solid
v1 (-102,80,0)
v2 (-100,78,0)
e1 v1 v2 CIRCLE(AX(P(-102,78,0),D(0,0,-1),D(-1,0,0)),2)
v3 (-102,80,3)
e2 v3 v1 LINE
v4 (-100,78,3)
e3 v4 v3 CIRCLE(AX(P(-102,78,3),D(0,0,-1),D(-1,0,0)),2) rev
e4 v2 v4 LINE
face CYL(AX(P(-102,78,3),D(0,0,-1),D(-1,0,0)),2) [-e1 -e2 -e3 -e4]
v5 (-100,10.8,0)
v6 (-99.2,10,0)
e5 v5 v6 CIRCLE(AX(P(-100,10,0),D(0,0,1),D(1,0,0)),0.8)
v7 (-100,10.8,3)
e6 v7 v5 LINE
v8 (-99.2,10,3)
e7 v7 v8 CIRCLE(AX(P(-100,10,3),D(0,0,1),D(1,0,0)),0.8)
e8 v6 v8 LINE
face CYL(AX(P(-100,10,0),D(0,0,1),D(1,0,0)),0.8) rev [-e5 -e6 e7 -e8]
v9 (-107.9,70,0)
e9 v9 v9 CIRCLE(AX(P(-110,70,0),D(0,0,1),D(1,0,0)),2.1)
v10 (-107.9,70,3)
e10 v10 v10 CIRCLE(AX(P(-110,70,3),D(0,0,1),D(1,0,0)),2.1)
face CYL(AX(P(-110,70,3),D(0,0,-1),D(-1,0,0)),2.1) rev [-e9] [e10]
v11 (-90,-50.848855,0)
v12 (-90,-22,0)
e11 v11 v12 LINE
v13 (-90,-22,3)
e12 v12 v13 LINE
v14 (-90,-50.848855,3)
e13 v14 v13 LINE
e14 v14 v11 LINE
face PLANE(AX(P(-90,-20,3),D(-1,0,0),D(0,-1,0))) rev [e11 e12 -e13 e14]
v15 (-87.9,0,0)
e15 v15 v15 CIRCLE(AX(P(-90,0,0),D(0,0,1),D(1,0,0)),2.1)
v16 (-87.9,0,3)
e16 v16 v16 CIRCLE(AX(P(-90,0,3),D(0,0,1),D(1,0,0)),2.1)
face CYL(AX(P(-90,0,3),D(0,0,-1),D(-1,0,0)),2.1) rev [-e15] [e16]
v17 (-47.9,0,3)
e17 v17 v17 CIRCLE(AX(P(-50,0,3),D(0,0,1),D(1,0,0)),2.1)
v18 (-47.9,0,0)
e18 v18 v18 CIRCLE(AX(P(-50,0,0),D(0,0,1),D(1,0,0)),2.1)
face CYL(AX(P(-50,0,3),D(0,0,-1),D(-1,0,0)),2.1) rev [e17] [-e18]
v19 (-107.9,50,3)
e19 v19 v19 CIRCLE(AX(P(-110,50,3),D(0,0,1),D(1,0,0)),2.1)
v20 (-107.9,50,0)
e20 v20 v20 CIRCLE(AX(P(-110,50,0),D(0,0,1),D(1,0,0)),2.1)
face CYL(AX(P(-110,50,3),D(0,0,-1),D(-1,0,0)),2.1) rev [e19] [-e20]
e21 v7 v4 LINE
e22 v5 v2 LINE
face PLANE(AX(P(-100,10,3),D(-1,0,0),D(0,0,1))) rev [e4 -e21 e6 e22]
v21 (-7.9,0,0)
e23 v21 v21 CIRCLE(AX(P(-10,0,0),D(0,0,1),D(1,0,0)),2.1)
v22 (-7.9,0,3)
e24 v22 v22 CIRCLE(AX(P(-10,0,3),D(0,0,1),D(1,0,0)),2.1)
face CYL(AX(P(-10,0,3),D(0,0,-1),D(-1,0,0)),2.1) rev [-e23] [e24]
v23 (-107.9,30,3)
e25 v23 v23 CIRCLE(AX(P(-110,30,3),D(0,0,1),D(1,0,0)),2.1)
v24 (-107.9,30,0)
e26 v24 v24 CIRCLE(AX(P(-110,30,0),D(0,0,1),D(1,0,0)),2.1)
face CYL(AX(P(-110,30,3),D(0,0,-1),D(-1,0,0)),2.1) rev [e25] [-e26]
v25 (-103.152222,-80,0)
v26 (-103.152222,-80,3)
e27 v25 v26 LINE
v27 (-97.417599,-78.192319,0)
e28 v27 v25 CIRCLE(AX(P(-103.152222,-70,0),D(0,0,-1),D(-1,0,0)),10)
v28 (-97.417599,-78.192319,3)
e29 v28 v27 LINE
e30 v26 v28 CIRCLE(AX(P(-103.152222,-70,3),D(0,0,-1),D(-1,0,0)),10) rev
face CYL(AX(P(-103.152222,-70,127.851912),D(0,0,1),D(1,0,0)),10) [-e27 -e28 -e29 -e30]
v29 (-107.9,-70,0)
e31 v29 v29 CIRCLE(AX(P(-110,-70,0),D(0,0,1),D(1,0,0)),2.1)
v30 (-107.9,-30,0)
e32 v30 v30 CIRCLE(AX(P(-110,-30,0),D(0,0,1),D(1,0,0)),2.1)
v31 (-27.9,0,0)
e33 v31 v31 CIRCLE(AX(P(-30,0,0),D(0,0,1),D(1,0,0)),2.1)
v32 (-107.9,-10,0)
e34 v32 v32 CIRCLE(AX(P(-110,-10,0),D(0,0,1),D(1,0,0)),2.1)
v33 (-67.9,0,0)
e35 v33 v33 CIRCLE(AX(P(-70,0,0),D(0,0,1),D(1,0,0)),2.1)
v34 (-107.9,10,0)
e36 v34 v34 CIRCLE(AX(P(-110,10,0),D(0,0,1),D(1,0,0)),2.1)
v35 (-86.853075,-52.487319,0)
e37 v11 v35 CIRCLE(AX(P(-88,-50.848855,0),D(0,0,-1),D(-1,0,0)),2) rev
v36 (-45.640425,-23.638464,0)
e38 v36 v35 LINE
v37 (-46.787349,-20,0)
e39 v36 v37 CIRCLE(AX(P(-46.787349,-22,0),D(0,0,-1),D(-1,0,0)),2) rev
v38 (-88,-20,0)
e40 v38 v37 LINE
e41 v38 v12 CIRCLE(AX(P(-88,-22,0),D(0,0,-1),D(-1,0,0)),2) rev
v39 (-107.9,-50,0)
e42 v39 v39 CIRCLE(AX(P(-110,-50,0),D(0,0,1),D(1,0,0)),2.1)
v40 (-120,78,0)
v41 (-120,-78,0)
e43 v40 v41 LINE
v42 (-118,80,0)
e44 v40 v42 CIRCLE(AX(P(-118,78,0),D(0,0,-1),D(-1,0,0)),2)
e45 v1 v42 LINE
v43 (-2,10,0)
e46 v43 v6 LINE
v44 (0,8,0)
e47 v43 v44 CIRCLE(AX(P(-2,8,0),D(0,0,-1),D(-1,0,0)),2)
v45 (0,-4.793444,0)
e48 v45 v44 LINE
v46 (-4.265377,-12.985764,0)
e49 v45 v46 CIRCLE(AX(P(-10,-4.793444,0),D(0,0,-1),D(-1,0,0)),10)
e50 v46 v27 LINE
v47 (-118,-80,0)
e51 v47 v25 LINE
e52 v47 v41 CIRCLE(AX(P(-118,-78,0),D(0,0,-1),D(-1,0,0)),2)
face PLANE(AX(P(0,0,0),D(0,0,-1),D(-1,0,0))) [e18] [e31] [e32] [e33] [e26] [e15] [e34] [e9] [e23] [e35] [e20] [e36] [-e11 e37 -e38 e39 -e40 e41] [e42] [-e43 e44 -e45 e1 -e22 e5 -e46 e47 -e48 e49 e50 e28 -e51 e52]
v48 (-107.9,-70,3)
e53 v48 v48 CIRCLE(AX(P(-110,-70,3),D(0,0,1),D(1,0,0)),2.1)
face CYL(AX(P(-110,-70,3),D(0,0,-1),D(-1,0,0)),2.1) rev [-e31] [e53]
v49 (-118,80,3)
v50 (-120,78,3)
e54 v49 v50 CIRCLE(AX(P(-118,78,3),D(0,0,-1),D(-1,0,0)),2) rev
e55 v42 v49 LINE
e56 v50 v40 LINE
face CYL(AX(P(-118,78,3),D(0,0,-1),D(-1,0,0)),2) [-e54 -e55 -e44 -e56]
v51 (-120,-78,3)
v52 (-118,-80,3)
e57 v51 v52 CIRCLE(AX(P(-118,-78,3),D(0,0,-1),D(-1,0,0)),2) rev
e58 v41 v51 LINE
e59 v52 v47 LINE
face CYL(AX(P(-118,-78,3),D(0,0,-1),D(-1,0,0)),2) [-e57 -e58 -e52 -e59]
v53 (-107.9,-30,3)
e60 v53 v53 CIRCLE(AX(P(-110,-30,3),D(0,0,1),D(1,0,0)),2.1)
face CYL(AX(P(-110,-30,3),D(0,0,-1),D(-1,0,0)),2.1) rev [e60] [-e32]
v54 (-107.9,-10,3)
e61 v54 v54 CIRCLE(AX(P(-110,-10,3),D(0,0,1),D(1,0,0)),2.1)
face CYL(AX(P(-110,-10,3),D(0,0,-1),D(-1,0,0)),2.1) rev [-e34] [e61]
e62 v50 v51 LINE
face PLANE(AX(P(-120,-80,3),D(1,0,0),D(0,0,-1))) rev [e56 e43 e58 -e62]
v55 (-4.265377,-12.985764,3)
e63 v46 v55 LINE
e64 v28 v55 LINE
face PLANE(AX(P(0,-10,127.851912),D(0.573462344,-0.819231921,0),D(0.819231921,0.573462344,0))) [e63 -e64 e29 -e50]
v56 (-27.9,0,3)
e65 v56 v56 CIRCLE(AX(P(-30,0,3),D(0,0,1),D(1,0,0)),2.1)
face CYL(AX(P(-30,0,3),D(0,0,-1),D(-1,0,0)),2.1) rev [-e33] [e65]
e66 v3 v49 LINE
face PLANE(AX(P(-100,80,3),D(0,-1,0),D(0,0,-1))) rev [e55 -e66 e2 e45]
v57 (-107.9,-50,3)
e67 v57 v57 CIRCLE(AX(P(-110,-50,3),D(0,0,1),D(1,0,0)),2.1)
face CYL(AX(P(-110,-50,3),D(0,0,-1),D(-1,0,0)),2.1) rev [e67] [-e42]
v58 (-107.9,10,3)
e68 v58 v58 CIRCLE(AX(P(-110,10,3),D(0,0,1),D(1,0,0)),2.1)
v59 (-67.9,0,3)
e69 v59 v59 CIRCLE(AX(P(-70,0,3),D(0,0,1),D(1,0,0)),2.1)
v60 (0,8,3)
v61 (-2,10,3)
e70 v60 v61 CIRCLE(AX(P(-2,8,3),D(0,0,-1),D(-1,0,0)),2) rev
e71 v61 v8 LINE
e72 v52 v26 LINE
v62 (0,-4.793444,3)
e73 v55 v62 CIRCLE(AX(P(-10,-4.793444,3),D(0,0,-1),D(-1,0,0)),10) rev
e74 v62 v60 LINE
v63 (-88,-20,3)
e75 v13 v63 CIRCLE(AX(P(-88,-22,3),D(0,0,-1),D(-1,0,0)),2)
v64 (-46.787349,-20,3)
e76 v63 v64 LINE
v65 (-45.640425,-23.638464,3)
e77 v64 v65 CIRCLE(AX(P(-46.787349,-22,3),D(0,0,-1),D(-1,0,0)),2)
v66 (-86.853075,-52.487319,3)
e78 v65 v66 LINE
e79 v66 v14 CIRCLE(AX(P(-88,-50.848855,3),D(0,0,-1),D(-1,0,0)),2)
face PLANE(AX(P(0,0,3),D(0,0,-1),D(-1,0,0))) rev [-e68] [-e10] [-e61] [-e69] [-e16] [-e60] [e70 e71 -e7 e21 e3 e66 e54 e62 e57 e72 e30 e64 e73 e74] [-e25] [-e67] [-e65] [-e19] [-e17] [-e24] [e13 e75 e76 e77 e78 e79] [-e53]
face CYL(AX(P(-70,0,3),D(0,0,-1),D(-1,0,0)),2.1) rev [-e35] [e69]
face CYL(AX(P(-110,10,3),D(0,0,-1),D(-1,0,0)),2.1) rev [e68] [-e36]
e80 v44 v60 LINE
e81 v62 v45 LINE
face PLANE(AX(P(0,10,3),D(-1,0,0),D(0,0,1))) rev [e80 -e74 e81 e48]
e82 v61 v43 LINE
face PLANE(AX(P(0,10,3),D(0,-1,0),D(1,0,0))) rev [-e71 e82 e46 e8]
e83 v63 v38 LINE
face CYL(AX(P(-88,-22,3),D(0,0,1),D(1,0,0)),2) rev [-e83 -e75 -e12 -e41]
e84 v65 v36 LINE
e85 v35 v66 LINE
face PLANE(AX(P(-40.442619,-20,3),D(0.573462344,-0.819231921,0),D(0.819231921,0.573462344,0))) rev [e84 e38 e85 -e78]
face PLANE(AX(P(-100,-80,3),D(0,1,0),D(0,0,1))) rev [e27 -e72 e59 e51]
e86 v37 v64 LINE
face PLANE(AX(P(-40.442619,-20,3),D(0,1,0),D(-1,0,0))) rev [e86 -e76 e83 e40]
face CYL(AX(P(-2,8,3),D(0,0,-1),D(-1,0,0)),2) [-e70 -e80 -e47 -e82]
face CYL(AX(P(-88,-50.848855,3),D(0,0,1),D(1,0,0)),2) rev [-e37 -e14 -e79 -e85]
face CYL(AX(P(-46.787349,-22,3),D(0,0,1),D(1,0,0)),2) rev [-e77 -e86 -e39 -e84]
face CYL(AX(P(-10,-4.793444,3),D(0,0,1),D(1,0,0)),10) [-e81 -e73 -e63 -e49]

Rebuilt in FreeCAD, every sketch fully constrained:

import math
import FreeCAD as App
import Part
import Sketcher
from FreeCAD import Vector


def edges_at(feature, points):
    """Names of the edges that pass closest to the given points."""
    edges = feature.Shape.Edges
    near = lambda p: min(range(len(edges)), key=lambda i: edges[i].distToShape(Part.Vertex(*p))[0])
    return sorted({f"Edge{near(p) + 1}" for p in points})


def add_polygon(sketch, points):
    """Adds a closed chain of lines whose ends are joined by coincident constraints."""
    first, n = sketch.GeometryCount, len(points)
    for a, b in zip(points, points[1:] + points[:1]):
        sketch.addGeometry(Part.LineSegment(App.Vector(*a, 0), App.Vector(*b, 0)), False)
    for i in range(n):
        sketch.addConstraint(Sketcher.Constraint("Coincident", first + i, 2, first + (i + 1) % n, 1))

doc = App.newDocument("Part")
params = doc.addObject("Spreadsheet::Sheet", "Params")
for row, (alias, value) in enumerate([
    ("sketch1_diameter", "4.2 mm"),
    ("sketch1_width", "100 mm"),
    ("sketch1_width2", "20 mm"),
    ("sketch1_height", "70 mm"),
    ("pad1_length", "3 mm"),
    ("fillet_radius", "2 mm"),
    ("sketch2_diameter", "1.6 mm"),
    ("sketch3_radius", "2 mm"),
    ("sketch3_radius2", "0.8 mm"),
    ("sketch3_width", "97.2 mm"),
    ("sketch3_height", "67.2 mm"),
    ("pad2_length", "3 mm"),
    ("fillet2_radius", "2 mm"),
    ("fillet3_radius", "10 mm"),
], start=1):
    params.set(f"A{row}", alias)
    params.set(f"B{row}", "=" + value)
    params.setAlias(f"B{row}", alias)

body = doc.addObject("PartDesign::Body", "Body")

# Sketch on XY plane
sketch1 = body.newObject("Sketcher::SketchObject", "Sketch")
sketch1.AttachmentSupport = (doc.getObject("XY_Plane"), [""])
sketch1.MapMode = "FlatFace"
add_polygon(sketch1, [(-100, -80), (-100, -10), (0, -10), (0, 10), (-100, 10), (-100, 80), (-120, 80), (-120, -80)])  # lines 0-7
sketch1.addGeometry(Part.Circle(Vector(-110, -70, 0), Vector(0, 0, 1), 2.1), False)  # 8
sketch1.addGeometry(Part.Circle(Vector(-110, -50, 0), Vector(0, 0, 1), 2.1), False)  # 9
sketch1.addGeometry(Part.Circle(Vector(-110, -30, 0), Vector(0, 0, 1), 2.1), False)  # 10
sketch1.addGeometry(Part.Circle(Vector(-110, -10, 0), Vector(0, 0, 1), 2.1), False)  # 11
sketch1.addGeometry(Part.Circle(Vector(-110, 10, 0), Vector(0, 0, 1), 2.1), False)  # 12
sketch1.addGeometry(Part.Circle(Vector(-90, 0, 0), Vector(0, 0, 1), 2.1), False)  # 13
sketch1.addGeometry(Part.Circle(Vector(-110, 30, 0), Vector(0, 0, 1), 2.1), False)  # 14
sketch1.addGeometry(Part.Circle(Vector(-70, 0, 0), Vector(0, 0, 1), 2.1), False)  # 15
sketch1.addGeometry(Part.Circle(Vector(-110, 50, 0), Vector(0, 0, 1), 2.1), False)  # 16
sketch1.addGeometry(Part.Circle(Vector(-110, 70, 0), Vector(0, 0, 1), 2.1), False)  # 17
sketch1.addGeometry(Part.Circle(Vector(-50, 0, 0), Vector(0, 0, 1), 2.1), False)  # 18
sketch1.addGeometry(Part.Circle(Vector(-30, 0, 0), Vector(0, 0, 1), 2.1), False)  # 19
sketch1.addGeometry(Part.Circle(Vector(-10, 0, 0), Vector(0, 0, 1), 2.1), False)  # 20
sketch1.addConstraint(Sketcher.Constraint("Vertical", 0))
sketch1.addConstraint(Sketcher.Constraint("Horizontal", 1))
sketch1.addConstraint(Sketcher.Constraint("Vertical", 2))
sketch1.addConstraint(Sketcher.Constraint("Horizontal", 3))
sketch1.addConstraint(Sketcher.Constraint("Vertical", 4))
sketch1.addConstraint(Sketcher.Constraint("Horizontal", 5))
sketch1.addConstraint(Sketcher.Constraint("Vertical", 6))
sketch1.addConstraint(Sketcher.Constraint("Horizontal", 7))
sketch1.addConstraint(Sketcher.Constraint("Equal", 8, 9))
sketch1.addConstraint(Sketcher.Constraint("Equal", 9, 10))
sketch1.addConstraint(Sketcher.Constraint("Equal", 10, 11))
sketch1.addConstraint(Sketcher.Constraint("Equal", 11, 12))
sketch1.addConstraint(Sketcher.Constraint("Equal", 12, 13))
sketch1.addConstraint(Sketcher.Constraint("Equal", 13, 14))
sketch1.addConstraint(Sketcher.Constraint("Equal", 14, 15))
sketch1.addConstraint(Sketcher.Constraint("Equal", 15, 16))
sketch1.addConstraint(Sketcher.Constraint("Equal", 16, 17))
sketch1.addConstraint(Sketcher.Constraint("Equal", 17, 18))
sketch1.addConstraint(Sketcher.Constraint("Equal", 18, 19))
sketch1.addConstraint(Sketcher.Constraint("Equal", 19, 20))
sketch1.addConstraint(Sketcher.Constraint("Symmetric", 1, 2, 2, 2, -1, 1))
sketch1.addConstraint(Sketcher.Constraint("Symmetric", 11, 3, 12, 3, -1))
sketch1.addConstraint(Sketcher.Constraint("Symmetric", 10, 3, 14, 3, -1))
sketch1.addConstraint(Sketcher.Constraint("Symmetric", 9, 3, 16, 3, -1))
sketch1.addConstraint(Sketcher.Constraint("Symmetric", 8, 3, 17, 3, -1))
sketch1.addConstraint(Sketcher.Constraint("Symmetric", 4, 2, 7, 2, -1))
sketch1.addConstraint(Sketcher.Constraint("PointOnObject", 13, 3, -1))
sketch1.addConstraint(Sketcher.Constraint("PointOnObject", 15, 3, -1))
sketch1.addConstraint(Sketcher.Constraint("PointOnObject", 18, 3, -1))
sketch1.addConstraint(Sketcher.Constraint("PointOnObject", 19, 3, -1))
sketch1.addConstraint(Sketcher.Constraint("PointOnObject", 20, 3, -1))
sketch1.addConstraint(Sketcher.Constraint("Horizontal", 11, 3, 0, 2))
sketch1.addConstraint(Sketcher.Constraint("Vertical", 8, 3, 9, 3))
sketch1.addConstraint(Sketcher.Constraint("Vertical", 9, 3, 10, 3))
sketch1.addConstraint(Sketcher.Constraint("Vertical", 10, 3, 11, 3))
sketch1.addConstraint(Sketcher.Constraint("Equal", 7, 2))
sketch1.addConstraint(Sketcher.Constraint("Diameter", 8, 4.2))
sketch1.addConstraint(Sketcher.Constraint("DistanceX", 1, 1, 1, 2, 100.0))
sketch1.addConstraint(Sketcher.Constraint("DistanceX", 5, 2, 5, 1, 20.0))
sketch1.addConstraint(Sketcher.Constraint("DistanceY", 0, 1, 0, 2, 70.0))
sketch1.addConstraint(Sketcher.Constraint("DistanceX", 8, 3, -1, 1, 110.0))
sketch1.addConstraint(Sketcher.Constraint("DistanceY", 8, 3, -1, 1, 70.0))
sketch1.addConstraint(Sketcher.Constraint("DistanceY", 9, 3, -1, 1, 50.0))
sketch1.addConstraint(Sketcher.Constraint("DistanceY", 10, 3, -1, 1, 30.0))
sketch1.addConstraint(Sketcher.Constraint("DistanceX", 13, 3, -1, 1, 90.0))
sketch1.addConstraint(Sketcher.Constraint("DistanceX", 15, 3, -1, 1, 70.0))
sketch1.addConstraint(Sketcher.Constraint("DistanceX", 18, 3, -1, 1, 50.0))
sketch1.addConstraint(Sketcher.Constraint("DistanceX", 19, 3, -1, 1, 30.0))
sketch1.addConstraint(Sketcher.Constraint("DistanceX", 20, 3, -1, 1, 10.0))
sketch1.setExpression("Constraints[44]", "Params.sketch1_diameter")
sketch1.setExpression("Constraints[45]", "Params.sketch1_width")
sketch1.setExpression("Constraints[46]", "Params.sketch1_width2")
sketch1.setExpression("Constraints[47]", "Params.sketch1_height")
pad1 = body.newObject("PartDesign::Pad", "Pad")
pad1.Profile = sketch1
pad1.setExpression("Length", "Params.pad1_length")
doc.recompute()

fillet = body.newObject("PartDesign::Fillet", "Fillet")
fillet.Base = (pad1, edges_at(pad1, [
    (-120, -80, 1.5),
    (-120, 80, 1.5),
    (-100, 80, 1.5),
    (0, 10, 1.5),
    (0, -10, 1.5),
    (-100, -80, 1.5),
]))
fillet.setExpression("Radius", "Params.fillet_radius")

# Sketch on XY plane
sketch2 = body.newObject("Sketcher::SketchObject", "Sketch001")
sketch2.AttachmentSupport = (doc.getObject("XY_Plane"), [""])
sketch2.MapMode = "FlatFace"
sketch2.AttachmentOffset = App.Placement(Vector(0, 0, 3), App.Rotation())
sketch2.addGeometry(Part.Circle(Vector(-100, 10, 0), Vector(0, 0, 1), 0.8), False)
sketch2.addGeometry(Part.Circle(Vector(-100, -10, 0), Vector(0, 0, 1), 0.8), False)
sketch2.addConstraint(Sketcher.Constraint("Equal", 0, 1))
sketch2.addConstraint(Sketcher.Constraint("Symmetric", 0, 3, 1, 3, -1))
sketch2.addConstraint(Sketcher.Constraint("Diameter", 0, 1.6))
sketch2.addConstraint(Sketcher.Constraint("DistanceX", 0, 3, -1, 1, 100.0))
sketch2.addConstraint(Sketcher.Constraint("DistanceY", -1, 1, 0, 3, 10.0))
sketch2.setExpression("Constraints[2]", "Params.sketch2_diameter")
pocket1 = body.newObject("PartDesign::Pocket", "Pocket")
pocket1.Profile = sketch2
pocket1.Type = "ThroughAll"

# Sketch on XY plane
sketch3 = body.newObject("Sketcher::SketchObject", "Sketch002")
sketch3.AttachmentSupport = (doc.getObject("XY_Plane"), [""])
sketch3.MapMode = "FlatFace"
sketch3.AttachmentOffset = App.Placement(Vector(0, 0, 3), App.Rotation())
sketch3.addGeometry(Part.LineSegment(Vector(0, -8, 0), Vector(0, -10, 0)), False)
sketch3.addGeometry(Part.LineSegment(Vector(0, -10, 0), Vector(-100, -80, 0)), False)
sketch3.addGeometry(Part.LineSegment(Vector(-100, -80, 0), Vector(-102, -80, 0)), False)
sketch3.addGeometry(Part.ArcOfCircle(Part.Circle(Vector(-102, -78, 0), Vector(0, 0, 1), 2), math.radians(-90), math.radians(0)), False)
sketch3.addGeometry(Part.LineSegment(Vector(-100, -78, 0), Vector(-100, -10.8, 0)), False)
sketch3.addGeometry(Part.ArcOfCircle(Part.Circle(Vector(-100, -10, 0), Vector(0, 0, 1), 0.8), math.radians(0), math.radians(270)), False)
sketch3.addGeometry(Part.LineSegment(Vector(-99.2, -10, 0), Vector(-2, -10, 0)), False)
sketch3.addGeometry(Part.ArcOfCircle(Part.Circle(Vector(-2, -8, 0), Vector(0, 0, 1), 2), math.radians(-90), math.radians(0)), False)
sketch3.addConstraint(Sketcher.Constraint("Coincident", 0, 2, 1, 1))
sketch3.addConstraint(Sketcher.Constraint("Coincident", 1, 2, 2, 1))
sketch3.addConstraint(Sketcher.Constraint("Tangent", 2, 2, 3, 1))
sketch3.addConstraint(Sketcher.Constraint("Tangent", 3, 2, 4, 1))
sketch3.addConstraint(Sketcher.Constraint("Coincident", 4, 2, 5, 2))
sketch3.addConstraint(Sketcher.Constraint("Coincident", 5, 1, 6, 1))
sketch3.addConstraint(Sketcher.Constraint("Tangent", 6, 2, 7, 1))
sketch3.addConstraint(Sketcher.Constraint("Tangent", 7, 2, 0, 1))
sketch3.addConstraint(Sketcher.Constraint("Vertical", 0))
sketch3.addConstraint(Sketcher.Constraint("Horizontal", 2))
sketch3.addConstraint(Sketcher.Constraint("Vertical", 4))
sketch3.addConstraint(Sketcher.Constraint("Horizontal", 6))
sketch3.addConstraint(Sketcher.Constraint("Equal", 3, 7))
sketch3.addConstraint(Sketcher.Constraint("PointOnObject", 0, 2, -2))
sketch3.addConstraint(Sketcher.Constraint("Horizontal", 5, 3, 0, 2))
sketch3.addConstraint(Sketcher.Constraint("Horizontal", 0, 2, 5, 1))
sketch3.addConstraint(Sketcher.Constraint("Vertical", 5, 3, 1, 2))
sketch3.addConstraint(Sketcher.Constraint("Vertical", 1, 2, 3, 2))
sketch3.addConstraint(Sketcher.Constraint("Radius", 3, 2.0))
sketch3.addConstraint(Sketcher.Constraint("Radius", 5, 0.8))
sketch3.addConstraint(Sketcher.Constraint("DistanceX", 6, 1, 6, 2, 97.2))
sketch3.addConstraint(Sketcher.Constraint("DistanceY", 4, 1, 4, 2, 67.2))
sketch3.addConstraint(Sketcher.Constraint("DistanceY", 3, 3, -1, 1, 78.0))
sketch3.setExpression("Constraints[18]", "Params.sketch3_radius")
sketch3.setExpression("Constraints[19]", "Params.sketch3_radius2")
sketch3.setExpression("Constraints[20]", "Params.sketch3_width")
sketch3.setExpression("Constraints[21]", "Params.sketch3_height")
pad2 = body.newObject("PartDesign::Pad", "Pad001")
pad2.Profile = sketch3
pad2.setExpression("Length", "Params.pad2_length")
pad2.Reversed = True

# Sketch on XY plane
sketch4 = body.newObject("Sketcher::SketchObject", "Sketch003")
sketch4.AttachmentSupport = (doc.getObject("XY_Plane"), [""])
sketch4.MapMode = "FlatFace"
add_polygon(sketch4, [(-90, -20), (-40, -20), (-90, -55)])  # lines 0-2
sketch4.addConstraint(Sketcher.Constraint("Horizontal", 0))
sketch4.addConstraint(Sketcher.Constraint("Vertical", 2))
sketch4.addConstraint(Sketcher.Constraint("DistanceY", 0, 2, -1, 1, 20.0))
sketch4.addConstraint(Sketcher.Constraint("DistanceX", 1, 2, -1, 1, 90.0))
sketch4.addConstraint(Sketcher.Constraint("DistanceX", 0, 1, 0, 2, 49.557381))
sketch4.addConstraint(Sketcher.Constraint("DistanceY", 2, 1, 2, 2, 34.690167))
pocket2 = body.newObject("PartDesign::Pocket", "Pocket001")
pocket2.Profile = sketch4
pocket2.Type = "ThroughAll"
pocket2.Reversed = True
doc.recompute()

fillet2 = body.newObject("PartDesign::Fillet", "Fillet001")
fillet2.Base = (pocket2, edges_at(pocket2, [(-90, -54.69, 1.5), (-40.443, -20, 1.5), (-90, -20, 1.5)]))
fillet2.setExpression("Radius", "Params.fillet2_radius")
doc.recompute()

fillet3 = body.newObject("PartDesign::Fillet", "Fillet002")
fillet3.Base = (fillet2, edges_at(fillet2, [(-100, -80, 1.5), (0, -10, 1.5)]))
fillet3.setExpression("Radius", "Params.fillet3_radius")

doc.recompute()
